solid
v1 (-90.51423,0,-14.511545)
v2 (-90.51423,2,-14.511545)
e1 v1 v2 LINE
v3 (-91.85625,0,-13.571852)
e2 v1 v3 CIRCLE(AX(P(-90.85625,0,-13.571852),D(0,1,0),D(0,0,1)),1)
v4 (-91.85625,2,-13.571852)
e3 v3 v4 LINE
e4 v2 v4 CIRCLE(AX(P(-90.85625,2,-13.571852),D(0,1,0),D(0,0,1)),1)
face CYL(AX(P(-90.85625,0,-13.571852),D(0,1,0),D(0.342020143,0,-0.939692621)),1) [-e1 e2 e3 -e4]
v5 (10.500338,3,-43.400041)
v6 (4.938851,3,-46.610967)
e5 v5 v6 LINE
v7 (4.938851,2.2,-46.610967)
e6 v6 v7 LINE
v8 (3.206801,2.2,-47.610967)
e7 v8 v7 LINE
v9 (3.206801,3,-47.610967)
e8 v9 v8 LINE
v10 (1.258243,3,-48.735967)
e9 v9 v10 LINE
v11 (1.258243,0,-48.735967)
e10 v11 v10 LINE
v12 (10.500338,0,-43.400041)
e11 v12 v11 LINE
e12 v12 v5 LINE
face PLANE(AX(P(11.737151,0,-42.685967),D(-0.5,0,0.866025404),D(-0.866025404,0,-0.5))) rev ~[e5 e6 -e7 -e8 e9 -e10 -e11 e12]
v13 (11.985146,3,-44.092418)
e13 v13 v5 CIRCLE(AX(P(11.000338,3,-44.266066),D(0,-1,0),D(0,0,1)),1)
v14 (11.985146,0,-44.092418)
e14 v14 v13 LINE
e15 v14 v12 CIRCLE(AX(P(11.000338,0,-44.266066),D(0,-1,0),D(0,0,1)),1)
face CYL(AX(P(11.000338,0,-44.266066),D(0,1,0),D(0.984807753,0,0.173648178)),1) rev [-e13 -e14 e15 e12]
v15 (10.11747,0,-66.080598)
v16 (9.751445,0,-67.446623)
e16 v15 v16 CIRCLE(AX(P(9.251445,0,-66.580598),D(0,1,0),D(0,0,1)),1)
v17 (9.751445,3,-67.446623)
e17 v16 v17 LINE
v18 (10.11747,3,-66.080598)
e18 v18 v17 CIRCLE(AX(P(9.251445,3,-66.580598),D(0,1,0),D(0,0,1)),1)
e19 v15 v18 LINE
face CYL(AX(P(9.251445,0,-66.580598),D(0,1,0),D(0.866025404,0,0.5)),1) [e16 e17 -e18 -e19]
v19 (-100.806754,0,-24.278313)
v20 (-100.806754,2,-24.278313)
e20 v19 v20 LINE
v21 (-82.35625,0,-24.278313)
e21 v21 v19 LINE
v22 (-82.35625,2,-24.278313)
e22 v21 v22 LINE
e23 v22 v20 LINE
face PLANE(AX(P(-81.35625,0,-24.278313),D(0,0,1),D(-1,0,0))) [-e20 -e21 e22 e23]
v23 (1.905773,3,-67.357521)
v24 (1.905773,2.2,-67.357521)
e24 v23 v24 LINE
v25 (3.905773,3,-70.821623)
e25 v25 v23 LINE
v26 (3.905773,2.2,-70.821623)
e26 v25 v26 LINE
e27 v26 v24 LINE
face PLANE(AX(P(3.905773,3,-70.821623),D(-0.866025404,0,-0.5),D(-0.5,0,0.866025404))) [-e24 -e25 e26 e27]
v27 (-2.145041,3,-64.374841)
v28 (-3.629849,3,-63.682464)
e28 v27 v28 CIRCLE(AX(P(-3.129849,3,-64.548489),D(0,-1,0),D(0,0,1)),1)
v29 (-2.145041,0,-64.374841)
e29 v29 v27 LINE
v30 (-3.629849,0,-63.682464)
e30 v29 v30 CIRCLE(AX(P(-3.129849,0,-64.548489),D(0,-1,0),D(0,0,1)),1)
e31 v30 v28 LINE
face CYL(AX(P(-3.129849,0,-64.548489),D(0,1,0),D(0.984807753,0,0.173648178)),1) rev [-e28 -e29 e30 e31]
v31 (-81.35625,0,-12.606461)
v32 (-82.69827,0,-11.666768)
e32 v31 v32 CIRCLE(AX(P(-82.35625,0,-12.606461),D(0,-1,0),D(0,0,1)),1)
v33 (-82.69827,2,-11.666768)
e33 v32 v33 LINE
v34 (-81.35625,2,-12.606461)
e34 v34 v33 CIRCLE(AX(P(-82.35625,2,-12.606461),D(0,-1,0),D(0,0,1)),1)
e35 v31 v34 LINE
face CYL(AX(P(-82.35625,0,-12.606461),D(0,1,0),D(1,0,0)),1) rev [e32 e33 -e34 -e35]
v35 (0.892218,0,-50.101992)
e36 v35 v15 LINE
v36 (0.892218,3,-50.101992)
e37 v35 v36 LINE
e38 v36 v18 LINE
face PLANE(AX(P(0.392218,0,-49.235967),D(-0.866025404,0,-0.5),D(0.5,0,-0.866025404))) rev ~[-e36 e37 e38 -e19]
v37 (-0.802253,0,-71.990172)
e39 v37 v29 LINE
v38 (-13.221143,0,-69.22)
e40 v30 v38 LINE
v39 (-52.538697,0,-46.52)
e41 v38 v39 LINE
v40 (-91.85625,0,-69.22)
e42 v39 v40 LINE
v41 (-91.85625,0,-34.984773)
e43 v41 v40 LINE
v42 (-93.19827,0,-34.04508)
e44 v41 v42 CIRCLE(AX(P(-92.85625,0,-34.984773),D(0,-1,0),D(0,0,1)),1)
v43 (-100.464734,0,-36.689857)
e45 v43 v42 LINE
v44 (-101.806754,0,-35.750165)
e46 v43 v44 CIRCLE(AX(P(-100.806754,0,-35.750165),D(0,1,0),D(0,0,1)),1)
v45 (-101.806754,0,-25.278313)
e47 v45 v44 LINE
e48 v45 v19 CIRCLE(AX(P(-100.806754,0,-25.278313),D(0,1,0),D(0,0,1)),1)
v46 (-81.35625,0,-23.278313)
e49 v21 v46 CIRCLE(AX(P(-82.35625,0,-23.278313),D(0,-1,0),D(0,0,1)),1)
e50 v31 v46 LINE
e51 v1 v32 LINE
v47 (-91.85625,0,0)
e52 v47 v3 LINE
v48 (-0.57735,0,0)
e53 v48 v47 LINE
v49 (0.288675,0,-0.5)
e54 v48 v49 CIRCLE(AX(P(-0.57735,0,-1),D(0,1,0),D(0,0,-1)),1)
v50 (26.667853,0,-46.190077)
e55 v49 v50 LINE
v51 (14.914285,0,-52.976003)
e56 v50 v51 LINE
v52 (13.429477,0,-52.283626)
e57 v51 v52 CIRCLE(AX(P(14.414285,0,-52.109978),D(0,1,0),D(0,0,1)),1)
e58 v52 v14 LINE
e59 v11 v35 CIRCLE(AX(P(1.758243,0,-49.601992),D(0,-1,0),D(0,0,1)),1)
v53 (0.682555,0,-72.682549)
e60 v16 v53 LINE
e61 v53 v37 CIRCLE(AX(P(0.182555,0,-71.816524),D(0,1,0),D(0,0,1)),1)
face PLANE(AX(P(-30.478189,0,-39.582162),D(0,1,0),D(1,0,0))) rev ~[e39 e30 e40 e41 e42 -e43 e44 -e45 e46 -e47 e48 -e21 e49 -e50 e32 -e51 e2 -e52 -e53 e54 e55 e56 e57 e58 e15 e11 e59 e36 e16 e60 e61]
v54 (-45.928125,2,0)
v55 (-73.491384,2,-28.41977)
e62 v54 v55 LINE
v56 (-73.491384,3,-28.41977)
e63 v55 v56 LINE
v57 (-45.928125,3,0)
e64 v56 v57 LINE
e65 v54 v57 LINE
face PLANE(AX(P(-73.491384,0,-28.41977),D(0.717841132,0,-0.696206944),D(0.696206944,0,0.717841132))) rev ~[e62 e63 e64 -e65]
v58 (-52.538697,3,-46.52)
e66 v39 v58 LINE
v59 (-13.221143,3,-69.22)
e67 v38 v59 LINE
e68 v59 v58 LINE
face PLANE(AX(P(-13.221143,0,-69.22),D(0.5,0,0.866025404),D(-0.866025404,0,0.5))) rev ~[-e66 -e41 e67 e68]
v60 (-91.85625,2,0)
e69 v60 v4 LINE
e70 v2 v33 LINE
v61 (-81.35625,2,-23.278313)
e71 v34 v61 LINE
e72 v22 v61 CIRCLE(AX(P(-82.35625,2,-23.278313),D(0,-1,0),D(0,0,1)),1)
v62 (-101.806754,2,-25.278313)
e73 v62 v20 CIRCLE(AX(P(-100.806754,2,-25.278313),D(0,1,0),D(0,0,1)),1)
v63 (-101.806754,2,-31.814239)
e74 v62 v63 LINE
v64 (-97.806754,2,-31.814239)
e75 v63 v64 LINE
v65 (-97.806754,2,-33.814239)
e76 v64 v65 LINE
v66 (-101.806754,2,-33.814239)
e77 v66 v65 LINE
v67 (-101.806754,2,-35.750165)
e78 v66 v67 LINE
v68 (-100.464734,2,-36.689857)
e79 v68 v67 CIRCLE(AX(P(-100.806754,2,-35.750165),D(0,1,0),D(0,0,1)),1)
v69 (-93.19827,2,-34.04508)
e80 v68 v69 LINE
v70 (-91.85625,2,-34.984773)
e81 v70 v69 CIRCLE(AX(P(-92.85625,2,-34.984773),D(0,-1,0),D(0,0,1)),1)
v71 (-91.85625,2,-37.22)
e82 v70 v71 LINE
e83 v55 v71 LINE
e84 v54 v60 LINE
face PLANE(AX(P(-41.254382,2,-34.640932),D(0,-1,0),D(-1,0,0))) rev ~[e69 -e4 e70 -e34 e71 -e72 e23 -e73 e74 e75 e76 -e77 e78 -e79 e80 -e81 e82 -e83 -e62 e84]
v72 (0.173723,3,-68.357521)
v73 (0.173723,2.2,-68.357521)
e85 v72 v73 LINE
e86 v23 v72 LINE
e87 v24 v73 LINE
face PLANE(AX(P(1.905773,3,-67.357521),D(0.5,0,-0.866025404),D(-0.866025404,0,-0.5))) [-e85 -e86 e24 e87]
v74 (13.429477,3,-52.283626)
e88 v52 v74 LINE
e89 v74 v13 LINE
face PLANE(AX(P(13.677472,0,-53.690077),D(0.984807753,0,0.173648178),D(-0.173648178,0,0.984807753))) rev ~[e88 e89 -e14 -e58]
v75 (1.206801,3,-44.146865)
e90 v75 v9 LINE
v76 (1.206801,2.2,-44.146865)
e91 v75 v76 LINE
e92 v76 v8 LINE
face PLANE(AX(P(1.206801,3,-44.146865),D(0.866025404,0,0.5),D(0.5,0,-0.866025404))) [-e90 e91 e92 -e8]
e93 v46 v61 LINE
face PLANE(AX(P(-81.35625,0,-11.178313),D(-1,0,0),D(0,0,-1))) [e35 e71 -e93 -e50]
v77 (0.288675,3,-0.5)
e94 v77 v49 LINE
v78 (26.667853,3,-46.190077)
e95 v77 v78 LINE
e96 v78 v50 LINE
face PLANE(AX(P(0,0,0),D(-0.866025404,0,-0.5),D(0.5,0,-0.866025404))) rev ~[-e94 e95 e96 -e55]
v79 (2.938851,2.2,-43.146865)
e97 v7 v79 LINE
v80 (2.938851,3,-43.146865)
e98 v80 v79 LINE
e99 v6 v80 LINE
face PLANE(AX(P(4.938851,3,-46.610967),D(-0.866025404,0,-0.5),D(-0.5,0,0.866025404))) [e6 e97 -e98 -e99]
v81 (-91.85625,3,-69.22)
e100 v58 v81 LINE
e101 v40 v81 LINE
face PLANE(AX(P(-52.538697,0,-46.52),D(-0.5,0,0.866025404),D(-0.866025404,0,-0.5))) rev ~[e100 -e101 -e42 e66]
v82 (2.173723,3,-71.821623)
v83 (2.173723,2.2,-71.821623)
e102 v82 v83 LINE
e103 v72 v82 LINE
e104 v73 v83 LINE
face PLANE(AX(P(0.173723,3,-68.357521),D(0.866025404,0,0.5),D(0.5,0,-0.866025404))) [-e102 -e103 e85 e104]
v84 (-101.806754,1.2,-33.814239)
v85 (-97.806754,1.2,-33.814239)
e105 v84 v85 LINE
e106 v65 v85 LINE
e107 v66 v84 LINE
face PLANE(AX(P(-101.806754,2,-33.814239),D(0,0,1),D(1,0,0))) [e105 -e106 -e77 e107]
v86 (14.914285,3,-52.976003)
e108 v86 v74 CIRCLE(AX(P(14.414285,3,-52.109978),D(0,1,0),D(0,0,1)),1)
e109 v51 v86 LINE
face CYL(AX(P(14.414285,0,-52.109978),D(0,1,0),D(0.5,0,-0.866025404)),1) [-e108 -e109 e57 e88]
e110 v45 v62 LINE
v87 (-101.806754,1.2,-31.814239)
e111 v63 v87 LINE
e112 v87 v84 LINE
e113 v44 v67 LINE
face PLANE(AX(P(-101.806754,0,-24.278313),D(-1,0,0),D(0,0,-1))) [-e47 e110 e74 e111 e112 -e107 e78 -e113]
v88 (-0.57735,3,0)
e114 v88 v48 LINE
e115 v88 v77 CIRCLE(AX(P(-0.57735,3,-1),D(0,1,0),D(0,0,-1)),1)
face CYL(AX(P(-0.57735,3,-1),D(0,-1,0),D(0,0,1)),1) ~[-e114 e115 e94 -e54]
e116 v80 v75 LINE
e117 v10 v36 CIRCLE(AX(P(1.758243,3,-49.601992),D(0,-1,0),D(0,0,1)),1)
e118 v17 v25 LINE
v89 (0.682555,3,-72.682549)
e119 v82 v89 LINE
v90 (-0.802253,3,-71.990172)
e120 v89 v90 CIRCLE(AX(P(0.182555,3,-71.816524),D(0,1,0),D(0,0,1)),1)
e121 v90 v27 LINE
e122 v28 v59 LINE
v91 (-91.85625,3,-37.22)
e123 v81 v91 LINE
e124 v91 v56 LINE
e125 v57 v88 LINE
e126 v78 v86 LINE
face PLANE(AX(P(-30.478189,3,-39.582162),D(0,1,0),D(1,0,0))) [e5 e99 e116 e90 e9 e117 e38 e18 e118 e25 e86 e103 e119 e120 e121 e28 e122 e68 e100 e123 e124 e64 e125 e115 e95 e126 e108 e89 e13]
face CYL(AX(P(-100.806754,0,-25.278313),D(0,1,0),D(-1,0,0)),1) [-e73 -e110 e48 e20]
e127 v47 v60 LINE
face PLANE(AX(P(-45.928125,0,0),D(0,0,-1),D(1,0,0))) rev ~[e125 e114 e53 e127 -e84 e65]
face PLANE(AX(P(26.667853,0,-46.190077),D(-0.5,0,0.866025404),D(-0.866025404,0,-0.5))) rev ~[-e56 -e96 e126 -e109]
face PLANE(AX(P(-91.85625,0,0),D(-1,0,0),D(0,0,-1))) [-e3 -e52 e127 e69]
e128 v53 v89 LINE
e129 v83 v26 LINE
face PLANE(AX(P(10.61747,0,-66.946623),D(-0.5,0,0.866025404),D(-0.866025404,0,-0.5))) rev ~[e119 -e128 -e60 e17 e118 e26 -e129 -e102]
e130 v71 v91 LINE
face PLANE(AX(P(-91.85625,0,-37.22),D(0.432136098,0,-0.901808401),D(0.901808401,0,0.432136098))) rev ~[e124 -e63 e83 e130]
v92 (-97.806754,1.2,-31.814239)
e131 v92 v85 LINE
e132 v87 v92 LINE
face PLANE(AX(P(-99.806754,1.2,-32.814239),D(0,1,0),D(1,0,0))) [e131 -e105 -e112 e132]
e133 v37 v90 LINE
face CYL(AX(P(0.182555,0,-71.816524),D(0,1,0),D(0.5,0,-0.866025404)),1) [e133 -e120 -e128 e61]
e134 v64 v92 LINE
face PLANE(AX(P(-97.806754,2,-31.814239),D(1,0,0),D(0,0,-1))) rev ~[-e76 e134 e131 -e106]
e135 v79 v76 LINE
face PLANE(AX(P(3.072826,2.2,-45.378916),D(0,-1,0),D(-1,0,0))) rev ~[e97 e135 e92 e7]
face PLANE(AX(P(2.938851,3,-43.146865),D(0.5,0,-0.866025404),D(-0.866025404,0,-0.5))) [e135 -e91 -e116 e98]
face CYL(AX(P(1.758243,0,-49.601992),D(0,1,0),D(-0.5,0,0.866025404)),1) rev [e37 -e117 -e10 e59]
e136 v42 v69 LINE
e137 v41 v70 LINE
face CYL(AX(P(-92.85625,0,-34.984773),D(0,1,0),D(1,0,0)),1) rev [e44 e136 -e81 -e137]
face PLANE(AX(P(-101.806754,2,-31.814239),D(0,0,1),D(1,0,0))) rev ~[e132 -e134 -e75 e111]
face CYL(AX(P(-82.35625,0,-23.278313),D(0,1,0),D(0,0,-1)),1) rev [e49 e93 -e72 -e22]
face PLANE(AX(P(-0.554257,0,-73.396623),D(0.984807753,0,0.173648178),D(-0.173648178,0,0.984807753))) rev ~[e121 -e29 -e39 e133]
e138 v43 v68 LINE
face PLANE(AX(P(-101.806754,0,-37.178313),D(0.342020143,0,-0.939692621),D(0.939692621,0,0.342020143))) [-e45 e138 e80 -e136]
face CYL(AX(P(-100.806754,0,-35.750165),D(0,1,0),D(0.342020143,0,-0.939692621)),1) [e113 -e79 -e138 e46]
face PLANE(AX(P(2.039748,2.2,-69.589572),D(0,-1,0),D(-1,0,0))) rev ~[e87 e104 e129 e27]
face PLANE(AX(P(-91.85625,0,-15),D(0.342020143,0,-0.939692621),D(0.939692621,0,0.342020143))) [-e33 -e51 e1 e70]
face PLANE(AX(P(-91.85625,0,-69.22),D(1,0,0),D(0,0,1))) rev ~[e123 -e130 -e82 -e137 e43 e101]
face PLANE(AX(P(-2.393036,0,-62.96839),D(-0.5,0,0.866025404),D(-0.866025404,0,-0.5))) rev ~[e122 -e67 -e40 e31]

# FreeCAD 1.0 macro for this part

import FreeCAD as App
import Part
import Sketcher

V = App.Vector
Q = App.Units.Quantity


def edges_at(feature, points):
    """Names of the edges that pass closest to the given points."""
    edges = feature.Shape.Edges
    near = lambda p: min(range(len(edges)), key=lambda i: edges[i].distToShape(Part.Vertex(*p))[0])
    return sorted({f"Edge{near(p) + 1}" for p in points})


def add_polygon(sketch, points):
    """Adds a closed chain of lines whose ends are joined by coincident constraints."""
    first, n = sketch.GeometryCount, len(points)
    for a, b in zip(points, points[1:] + points[:1]):
        sketch.addGeometry(Part.LineSegment(App.Vector(*a, 0), App.Vector(*b, 0)), False)
    for i in range(n):
        sketch.addConstraint(Sketcher.Constraint("Coincident", first + i, 2, first + (i + 1) % n, 1))

doc = App.newDocument("Part")
body = doc.addObject("PartDesign::Body", "Body")

# Sketch on XZ plane
sketch1 = doc.addObject("Sketcher::SketchObject", "Sketch")
body.addObject(sketch1)
sketch1.AttachmentSupport = (doc.XZ_Plane, [""])
sketch1.MapMode = "FlatFace"
add_polygon(sketch1, [(27, -46), (14, -54), (12, -43), (0, -49), (11, -67), (-1, -73), (-2, -63), (-13, -69), (-53, -47), (-92, -69), (-92, -37), (-73, -28), (-46, 0), (0, 0)])  # lines 0-13
sketch1.addConstraint([
    Sketcher.Constraint("Vertical", 9),
    Sketcher.Constraint("Horizontal", 12),
    Sketcher.Constraint("Coincident", 12, 2, -1, 1),
    Sketcher.Constraint("Parallel", 0, 2),
    Sketcher.Constraint("Perpendicular", 2, 3),
    Sketcher.Constraint("Perpendicular", 3, 4),
    Sketcher.Constraint("Parallel", 1, 5),
    Sketcher.Constraint("Parallel", 4, 6),
    Sketcher.Constraint("Parallel", 6, 8),
    Sketcher.Constraint("Perpendicular", 8, 13),
    Sketcher.Constraint("Horizontal", 6, 2, 8, 2),
    Sketcher.Constraint("Equal", 7, 8),
    Sketcher.Constraint("DistanceY", 9, 1, 9, 2, Q("32 mm")),
    Sketcher.Constraint("Angle", 0, Q("-150 deg")),
    Sketcher.Constraint("Angle", 1, Q("100 deg")),
    Sketcher.Constraint("Distance", 0, Q("15 mm")),
    Sketcher.Constraint("Distance", 2, Q("13.1 mm")),
    Sketcher.Constraint("Distance", 4, Q("12.9 mm")),
    Sketcher.Constraint("Distance", 7, Q("45.4 mm")),
    Sketcher.Constraint("DistanceY", 6, 2, -1, 1, Q("69.22 mm")),
    Sketcher.Constraint("Distance", 6, Q("12.503221 mm")),
    Sketcher.Constraint("DistanceX", 12, 1, 12, 2, Q("45.928125 mm")),
    Sketcher.Constraint("DistanceX", -1, 1, 1, 2, Q("11.737151 mm")),
    Sketcher.Constraint("DistanceX", -1, 1, 3, 2, Q("10.61747 mm")),
    Sketcher.Constraint("DistanceX", 8, 2, -1, 1, Q("91.85625 mm")),
    Sketcher.Constraint("DistanceY", 10, 2, -1, 1, Q("28.41977 mm")),
    Sketcher.Constraint("DistanceX", 10, 2, 6, 2, Q("60.270241 mm")),
])
pad1 = doc.addObject("PartDesign::Pad", "Pad")
body.addObject(pad1)
pad1.Profile = sketch1
pad1.Length = 3
pad1.Reversed = True

# Sketch on XZ plane
sketch2 = doc.addObject("Sketcher::SketchObject", "Sketch001")
body.addObject(sketch2)
sketch2.AttachmentSupport = (doc.XZ_Plane, [""])
sketch2.MapMode = "FlatFace"
add_polygon(sketch2, [(27, -46), (14, -54), (12, -43), (0, -49), (11, -67), (-1, -73), (-2, -63), (-13, -69), (-53, -47), (-92, -69), (-92, -34), (-102, -37), (-102, -24), (-81, -24), (-81, -11), (-92, -15), (-92, 0), (0, 0)])  # lines 0-17
sketch2.addConstraint([
    Sketcher.Constraint("Vertical", 9),
    Sketcher.Constraint("Vertical", 11),
    Sketcher.Constraint("Horizontal", 12),
    Sketcher.Constraint("Vertical", 13),
    Sketcher.Constraint("Vertical", 15),
    Sketcher.Constraint("Horizontal", 16),
    Sketcher.Constraint("Coincident", 16, 2, -1, 1),
    Sketcher.Constraint("Parallel", 0, 2),
    Sketcher.Constraint("Perpendicular", 2, 3),
    Sketcher.Constraint("Perpendicular", 3, 4),
    Sketcher.Constraint("Parallel", 1, 5),
    Sketcher.Constraint("Parallel", 4, 6),
    Sketcher.Constraint("Parallel", 6, 8),
    Sketcher.Constraint("Parallel", 10, 14),
    Sketcher.Constraint("Perpendicular", 8, 17),
    Sketcher.Constraint("Horizontal", 6, 2, 8, 2),
    Sketcher.Constraint("Vertical", 9, 2, 14, 2),
    Sketcher.Constraint("Equal", 7, 8),
    Sketcher.Constraint("Equal", 5, 10),
    Sketcher.Constraint("Equal", 1, 14),
    Sketcher.Constraint("DistanceY", 15, 1, 15, 2, Q("15 mm")),
    Sketcher.Constraint("Angle", 0, Q("-150 deg")),
    Sketcher.Constraint("Angle", 1, Q("100 deg")),
    Sketcher.Constraint("Angle", 10, Q("-160 deg")),
    Sketcher.Constraint("Distance", 0, Q("15 mm")),
    Sketcher.Constraint("DistanceY", 11, 1, 11, 2, Q("12.9 mm")),
    Sketcher.Constraint("DistanceY", 13, 1, 13, 2, Q("13.1 mm")),
    Sketcher.Constraint("Distance", 2, Q("13.1 mm")),
    Sketcher.Constraint("Distance", 4, Q("12.9 mm")),
    Sketcher.Constraint("Distance", 7, Q("45.4 mm")),
    Sketcher.Constraint("DistanceX", 9, 2, 12, 2, Q("10.5 mm")),
    Sketcher.Constraint("DistanceY", 6, 2, -1, 1, Q("69.22 mm")),
    Sketcher.Constraint("DistanceX", 16, 1, 16, 2, Q("91.85625 mm")),
    Sketcher.Constraint("Distance", 6, Q("12.503221 mm")),
    Sketcher.Constraint("DistanceX", -1, 1, 1, 2, Q("11.737151 mm")),
])
pad2 = doc.addObject("PartDesign::Pad", "Pad001")
body.addObject(pad2)
pad2.Profile = sketch2
pad2.Length = 2
pad2.Reversed = True
doc.recompute()

fillet = doc.addObject("PartDesign::Fillet", "Fillet")
body.addObject(fillet)
fillet.Base = (pad2, edges_at(pad2, [
    (10.617, 1.5, -66.947),
    (0.392, 1.5, -49.236),
    (11.737, 1.5, -42.686),
    (13.677, 1.5, -53.69),
    (0, 1.5, 0),
    (-2.393, 1.5, -62.968),
    (-0.554, 1.5, -73.397),
    (-91.856, 1, -33.557),
    (-101.807, 1, -37.178),
    (-101.807, 1, -24.278),
    (-81.356, 1, -24.278),
    (-81.356, 1, -11.178),
    (-91.856, 1, -15),
]))
fillet.Radius = 1

# Sketch on XZ plane
sketch3 = doc.addObject("Sketcher::SketchObject", "Sketch002")
body.addObject(sketch3)
sketch3.AttachmentSupport = (doc.XZ_Plane, [""])
sketch3.MapMode = "FlatFace"
sketch3.AttachmentOffset = App.Placement(V(0, 0, -2), App.Rotation())
add_polygon(sketch3, [(-101.8, -33.8), (-101.8, -31.8), (-97.8, -31.8), (-97.8, -33.8)])  # lines 0-3
sketch3.addConstraint([
    Sketcher.Constraint("Vertical", 0),
    Sketcher.Constraint("Horizontal", 1),
    Sketcher.Constraint("Vertical", 2),
    Sketcher.Constraint("Horizontal", 3),
    Sketcher.Constraint("DistanceX", 1, 1, 1, 2, Q("4 mm")),
    Sketcher.Constraint("DistanceY", 0, 1, 0, 2, Q("2 mm")),
    Sketcher.Constraint("DistanceY", 0, 2, -1, 1, Q("31.814239 mm")),
    Sketcher.Constraint("DistanceX", 0, 2, -1, 1, Q("101.806754 mm")),
])
pocket1 = doc.addObject("PartDesign::Pocket", "Pocket")
body.addObject(pocket1)
pocket1.Profile = sketch3
pocket1.Length = 0.8
pocket1.Reversed = True

# Sketch on XZ plane
sketch4 = doc.addObject("Sketcher::SketchObject", "Sketch003")
body.addObject(sketch4)
sketch4.AttachmentSupport = (doc.XZ_Plane, [""])
sketch4.MapMode = "FlatFace"
sketch4.AttachmentOffset = App.Placement(V(0, 0, -3), App.Rotation())
add_polygon(sketch4, [(3.2, -47.6), (1.2, -44.1), (2.9, -43.1), (4.9, -46.6)])  # lines 0-3
add_polygon(sketch4, [(2.2, -71.8), (0.2, -68.4), (1.9, -67.4), (3.9, -70.8)])  # lines 4-7
sketch4.addConstraint([
    Sketcher.Constraint("Perpendicular", 0, 1),
    Sketcher.Constraint("Perpendicular", 1, 2),
    Sketcher.Constraint("Perpendicular", 2, 3),
    Sketcher.Constraint("Perpendicular", 3, 4),
    Sketcher.Constraint("Perpendicular", 4, 5),
    Sketcher.Constraint("Perpendicular", 5, 6),
    Sketcher.Constraint("Perpendicular", 6, 7),
    Sketcher.Constraint("Equal", 2, 4),
    Sketcher.Constraint("Equal", 3, 5),
    Sketcher.Constraint("Angle", 0, Q("120 deg")),
    Sketcher.Constraint("Distance", 0, Q("4 mm")),
    Sketcher.Constraint("Distance", 1, Q("2 mm")),
    Sketcher.Constraint("DistanceX", -1, 1, 0, 2, Q("1.206801 mm")),
    Sketcher.Constraint("DistanceY", 4, 2, -1, 1, Q("68.357521 mm")),
    Sketcher.Constraint("DistanceX", 4, 2, 2, 2, Q("4.765129 mm")),
    Sketcher.Constraint("DistanceY", 6, 2, 0, 2, Q("26.674758 mm")),
])
pocket2 = doc.addObject("PartDesign::Pocket", "Pocket001")
body.addObject(pocket2)
pocket2.Profile = sketch4
pocket2.Length = 0.8
pocket2.Reversed = True

doc.recompute()
